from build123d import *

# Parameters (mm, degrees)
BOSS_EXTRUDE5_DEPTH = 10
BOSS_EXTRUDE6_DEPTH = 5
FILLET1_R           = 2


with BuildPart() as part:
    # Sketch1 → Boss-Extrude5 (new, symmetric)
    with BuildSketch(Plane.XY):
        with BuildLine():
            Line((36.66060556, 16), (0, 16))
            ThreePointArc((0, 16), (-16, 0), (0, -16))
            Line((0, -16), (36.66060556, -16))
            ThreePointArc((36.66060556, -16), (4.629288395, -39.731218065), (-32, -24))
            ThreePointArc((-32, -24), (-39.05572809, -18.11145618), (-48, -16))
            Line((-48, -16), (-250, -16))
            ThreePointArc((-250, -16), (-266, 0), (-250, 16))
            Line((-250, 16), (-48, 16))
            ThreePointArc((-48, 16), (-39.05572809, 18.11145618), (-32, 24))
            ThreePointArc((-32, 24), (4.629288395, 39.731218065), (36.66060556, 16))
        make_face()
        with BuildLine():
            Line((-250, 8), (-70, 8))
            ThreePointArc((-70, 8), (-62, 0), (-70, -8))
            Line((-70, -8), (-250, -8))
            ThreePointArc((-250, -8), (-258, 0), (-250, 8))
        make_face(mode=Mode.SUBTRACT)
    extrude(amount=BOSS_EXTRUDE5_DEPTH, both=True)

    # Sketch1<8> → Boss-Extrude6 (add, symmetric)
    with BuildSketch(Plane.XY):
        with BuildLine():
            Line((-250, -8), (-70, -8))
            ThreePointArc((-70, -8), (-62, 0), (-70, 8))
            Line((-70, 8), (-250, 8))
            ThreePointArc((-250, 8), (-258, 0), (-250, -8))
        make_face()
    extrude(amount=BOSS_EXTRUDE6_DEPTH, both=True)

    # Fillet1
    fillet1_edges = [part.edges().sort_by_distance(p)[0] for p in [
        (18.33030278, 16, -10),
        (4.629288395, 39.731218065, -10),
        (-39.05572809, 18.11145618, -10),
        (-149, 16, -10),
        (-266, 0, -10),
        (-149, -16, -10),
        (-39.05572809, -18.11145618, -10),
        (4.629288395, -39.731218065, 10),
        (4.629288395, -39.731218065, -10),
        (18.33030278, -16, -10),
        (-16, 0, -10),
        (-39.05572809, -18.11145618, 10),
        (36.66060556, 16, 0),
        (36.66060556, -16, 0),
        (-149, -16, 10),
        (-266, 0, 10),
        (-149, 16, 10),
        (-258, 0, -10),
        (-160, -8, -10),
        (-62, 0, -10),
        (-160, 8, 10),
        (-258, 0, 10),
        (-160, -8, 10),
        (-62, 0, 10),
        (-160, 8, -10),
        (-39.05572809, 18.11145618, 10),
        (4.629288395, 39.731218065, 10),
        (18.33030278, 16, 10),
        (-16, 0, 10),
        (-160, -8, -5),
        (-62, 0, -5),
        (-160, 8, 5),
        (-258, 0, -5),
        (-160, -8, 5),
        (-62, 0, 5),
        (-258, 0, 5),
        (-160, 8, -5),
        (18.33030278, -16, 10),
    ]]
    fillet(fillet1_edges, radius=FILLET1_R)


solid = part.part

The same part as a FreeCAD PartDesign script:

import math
import FreeCAD as App
import Part
import Sketcher
Q = App.Units.Quantity

doc = App.newDocument("Part")
body = doc.addObject("PartDesign::Body", "Body")

# Sketch on XY plane
sketch1 = body.newObject("Sketcher::SketchObject", "Sketch")
sketch1.AttachmentSupport = (doc.getObject("XY_Plane"), [""])
sketch1.MapMode = "FlatFace"
sketch1.addGeometry(Part.LineSegment(App.Vector(0, 16, 0), App.Vector(37, 16, 0)), False)
sketch1.addGeometry(Part.ArcOfCircle(Part.Circle(App.Vector(0, 0, 0), App.Vector(0, 0, 1), 40), math.radians(24), math.radians(143)), False)
sketch1.addGeometry(Part.ArcOfCircle(Part.Circle(App.Vector(-48, 36, 0), App.Vector(0, 0, 1), 20), math.radians(-90), math.radians(-37)), False)
sketch1.addGeometry(Part.LineSegment(App.Vector(-48, 16, 0), App.Vector(-250, 16, 0)), False)
sketch1.addGeometry(Part.ArcOfCircle(Part.Circle(App.Vector(-250, 0, 0), App.Vector(0, 0, 1), 16), math.radians(90), math.radians(270)), False)
sketch1.addGeometry(Part.LineSegment(App.Vector(-250, -16, 0), App.Vector(-48, -16, 0)), False)
sketch1.addGeometry(Part.ArcOfCircle(Part.Circle(App.Vector(-48, -36, 0), App.Vector(0, 0, 1), 20), math.radians(37), math.radians(90)), False)
sketch1.addGeometry(Part.ArcOfCircle(Part.Circle(App.Vector(0, 0, 0), App.Vector(0, 0, 1), 40), math.radians(-143), math.radians(-24)), False)
sketch1.addGeometry(Part.LineSegment(App.Vector(37, -16, 0), App.Vector(0, -16, 0)), False)
sketch1.addGeometry(Part.ArcOfCircle(Part.Circle(App.Vector(0, 0, 0), App.Vector(0, 0, 1), 16), math.radians(90), math.radians(270)), False)
sketch1.addGeometry(Part.LineSegment(App.Vector(-250, 8, 0), App.Vector(-70, 8, 0)), False)
sketch1.addGeometry(Part.ArcOfCircle(Part.Circle(App.Vector(-70, 0, 0), App.Vector(0, 0, 1), 8), math.radians(-90), math.radians(90)), False)
sketch1.addGeometry(Part.LineSegment(App.Vector(-70, -8, 0), App.Vector(-250, -8, 0)), False)
sketch1.addGeometry(Part.ArcOfCircle(Part.Circle(App.Vector(-250, 0, 0), App.Vector(0, 0, 1), 8), math.radians(90), math.radians(270)), False)
sketch1.addConstraint(Sketcher.Constraint("Coincident", 0, 2, 1, 1))
sketch1.addConstraint(Sketcher.Constraint("Tangent", 1, 2, 2, 2))
sketch1.addConstraint(Sketcher.Constraint("Tangent", 2, 1, 3, 1))
sketch1.addConstraint(Sketcher.Constraint("Tangent", 3, 2, 4, 1))
sketch1.addConstraint(Sketcher.Constraint("Tangent", 4, 2, 5, 1))
sketch1.addConstraint(Sketcher.Constraint("Tangent", 5, 2, 6, 2))
sketch1.addConstraint(Sketcher.Constraint("Tangent", 6, 1, 7, 1))
sketch1.addConstraint(Sketcher.Constraint("Coincident", 7, 2, 8, 1))
sketch1.addConstraint(Sketcher.Constraint("Tangent", 8, 2, 9, 2))
sketch1.addConstraint(Sketcher.Constraint("Tangent", 9, 1, 0, 1))
sketch1.addConstraint(Sketcher.Constraint("Tangent", 10, 2, 11, 2))
sketch1.addConstraint(Sketcher.Constraint("Tangent", 11, 1, 12, 1))
sketch1.addConstraint(Sketcher.Constraint("Tangent", 12, 2, 13, 2))
sketch1.addConstraint(Sketcher.Constraint("Tangent", 13, 1, 10, 1))
sketch1.addConstraint(Sketcher.Constraint("Horizontal", 0))
sketch1.addConstraint(Sketcher.Constraint("Horizontal", 3))
sketch1.addConstraint(Sketcher.Constraint("Horizontal", 5))
sketch1.addConstraint(Sketcher.Constraint("Horizontal", 8))
sketch1.addConstraint(Sketcher.Constraint("Horizontal", 10))
sketch1.addConstraint(Sketcher.Constraint("Horizontal", 12))
sketch1.addConstraint(Sketcher.Constraint("Coincident", 1, 3, -1, 1))
sketch1.addConstraint(Sketcher.Constraint("Coincident", 7, 3, -1, 1))
sketch1.addConstraint(Sketcher.Constraint("Coincident", 9, 3, -1, 1))
sketch1.addConstraint(Sketcher.Constraint("Coincident", 13, 3, 4, 3))
sketch1.addConstraint(Sketcher.Constraint("Equal", 2, 6))
sketch1.addConstraint(Sketcher.Constraint("Equal", 1, 7))
sketch1.addConstraint(Sketcher.Constraint("Equal", 4, 9))
sketch1.addConstraint(Sketcher.Constraint("PointOnObject", 4, 3, -1))
sketch1.addConstraint(Sketcher.Constraint("Radius", 1, Q("40 mm")))
sketch1.addConstraint(Sketcher.Constraint("Radius", 2, Q("20 mm")))
sketch1.addConstraint(Sketcher.Constraint("Radius", 4, Q("16 mm")))
sketch1.addConstraint(Sketcher.Constraint("Radius", 11, Q("8 mm")))
sketch1.addConstraint(Sketcher.Constraint("DistanceX", 3, 2, 3, 1, Q("202 mm")))
sketch1.addConstraint(Sketcher.Constraint("DistanceX", 10, 1, 10, 2, Q("180 mm")))
pad1 = body.newObject("PartDesign::Pad", "Pad")
pad1.Profile = sketch1
pad1.Length = 20
pad1.Midplane = True

# Sketch on XY plane
sketch2 = body.newObject("Sketcher::SketchObject", "Sketch001")
sketch2.AttachmentSupport = (doc.getObject("XY_Plane"), [""])
sketch2.MapMode = "FlatFace"
sketch2.addGeometry(Part.LineSegment(App.Vector(-250, -8, 0), App.Vector(-70, -8, 0)), False)
sketch2.addGeometry(Part.ArcOfCircle(Part.Circle(App.Vector(-70, 0, 0), App.Vector(0, 0, 1), 8), math.radians(-90), math.radians(90)), False)
sketch2.addGeometry(Part.LineSegment(App.Vector(-70, 8, 0), App.Vector(-250, 8, 0)), False)
sketch2.addGeometry(Part.ArcOfCircle(Part.Circle(App.Vector(-250, 0, 0), App.Vector(0, 0, 1), 8), math.radians(90), math.radians(270)), False)
sketch2.addConstraint(Sketcher.Constraint("Tangent", 0, 2, 1, 1))
sketch2.addConstraint(Sketcher.Constraint("Tangent", 1, 2, 2, 1))
sketch2.addConstraint(Sketcher.Constraint("Tangent", 2, 2, 3, 1))
sketch2.addConstraint(Sketcher.Constraint("Tangent", 3, 2, 0, 1))
sketch2.addConstraint(Sketcher.Constraint("Horizontal", 0))
sketch2.addConstraint(Sketcher.Constraint("Horizontal", 2))
sketch2.addConstraint(Sketcher.Constraint("PointOnObject", 1, 3, -1))
sketch2.addConstraint(Sketcher.Constraint("Radius", 1, Q("8 mm")))
sketch2.addConstraint(Sketcher.Constraint("DistanceX", 0, 1, 0, 2, Q("180 mm")))
sketch2.addConstraint(Sketcher.Constraint("DistanceX", 1, 3, -1, 1, Q("70 mm")))
pad2 = body.newObject("PartDesign::Pad", "Pad001")
pad2.Profile = sketch2
pad2.Length = 10
pad2.Midplane = True
doc.recompute()

fillet = body.newObject("PartDesign::Fillet", "Fillet")
fillet.Base = (pad2, ["Edge1"])
fillet.UseAllEdges = True
fillet.Radius = 2

doc.recompute()
